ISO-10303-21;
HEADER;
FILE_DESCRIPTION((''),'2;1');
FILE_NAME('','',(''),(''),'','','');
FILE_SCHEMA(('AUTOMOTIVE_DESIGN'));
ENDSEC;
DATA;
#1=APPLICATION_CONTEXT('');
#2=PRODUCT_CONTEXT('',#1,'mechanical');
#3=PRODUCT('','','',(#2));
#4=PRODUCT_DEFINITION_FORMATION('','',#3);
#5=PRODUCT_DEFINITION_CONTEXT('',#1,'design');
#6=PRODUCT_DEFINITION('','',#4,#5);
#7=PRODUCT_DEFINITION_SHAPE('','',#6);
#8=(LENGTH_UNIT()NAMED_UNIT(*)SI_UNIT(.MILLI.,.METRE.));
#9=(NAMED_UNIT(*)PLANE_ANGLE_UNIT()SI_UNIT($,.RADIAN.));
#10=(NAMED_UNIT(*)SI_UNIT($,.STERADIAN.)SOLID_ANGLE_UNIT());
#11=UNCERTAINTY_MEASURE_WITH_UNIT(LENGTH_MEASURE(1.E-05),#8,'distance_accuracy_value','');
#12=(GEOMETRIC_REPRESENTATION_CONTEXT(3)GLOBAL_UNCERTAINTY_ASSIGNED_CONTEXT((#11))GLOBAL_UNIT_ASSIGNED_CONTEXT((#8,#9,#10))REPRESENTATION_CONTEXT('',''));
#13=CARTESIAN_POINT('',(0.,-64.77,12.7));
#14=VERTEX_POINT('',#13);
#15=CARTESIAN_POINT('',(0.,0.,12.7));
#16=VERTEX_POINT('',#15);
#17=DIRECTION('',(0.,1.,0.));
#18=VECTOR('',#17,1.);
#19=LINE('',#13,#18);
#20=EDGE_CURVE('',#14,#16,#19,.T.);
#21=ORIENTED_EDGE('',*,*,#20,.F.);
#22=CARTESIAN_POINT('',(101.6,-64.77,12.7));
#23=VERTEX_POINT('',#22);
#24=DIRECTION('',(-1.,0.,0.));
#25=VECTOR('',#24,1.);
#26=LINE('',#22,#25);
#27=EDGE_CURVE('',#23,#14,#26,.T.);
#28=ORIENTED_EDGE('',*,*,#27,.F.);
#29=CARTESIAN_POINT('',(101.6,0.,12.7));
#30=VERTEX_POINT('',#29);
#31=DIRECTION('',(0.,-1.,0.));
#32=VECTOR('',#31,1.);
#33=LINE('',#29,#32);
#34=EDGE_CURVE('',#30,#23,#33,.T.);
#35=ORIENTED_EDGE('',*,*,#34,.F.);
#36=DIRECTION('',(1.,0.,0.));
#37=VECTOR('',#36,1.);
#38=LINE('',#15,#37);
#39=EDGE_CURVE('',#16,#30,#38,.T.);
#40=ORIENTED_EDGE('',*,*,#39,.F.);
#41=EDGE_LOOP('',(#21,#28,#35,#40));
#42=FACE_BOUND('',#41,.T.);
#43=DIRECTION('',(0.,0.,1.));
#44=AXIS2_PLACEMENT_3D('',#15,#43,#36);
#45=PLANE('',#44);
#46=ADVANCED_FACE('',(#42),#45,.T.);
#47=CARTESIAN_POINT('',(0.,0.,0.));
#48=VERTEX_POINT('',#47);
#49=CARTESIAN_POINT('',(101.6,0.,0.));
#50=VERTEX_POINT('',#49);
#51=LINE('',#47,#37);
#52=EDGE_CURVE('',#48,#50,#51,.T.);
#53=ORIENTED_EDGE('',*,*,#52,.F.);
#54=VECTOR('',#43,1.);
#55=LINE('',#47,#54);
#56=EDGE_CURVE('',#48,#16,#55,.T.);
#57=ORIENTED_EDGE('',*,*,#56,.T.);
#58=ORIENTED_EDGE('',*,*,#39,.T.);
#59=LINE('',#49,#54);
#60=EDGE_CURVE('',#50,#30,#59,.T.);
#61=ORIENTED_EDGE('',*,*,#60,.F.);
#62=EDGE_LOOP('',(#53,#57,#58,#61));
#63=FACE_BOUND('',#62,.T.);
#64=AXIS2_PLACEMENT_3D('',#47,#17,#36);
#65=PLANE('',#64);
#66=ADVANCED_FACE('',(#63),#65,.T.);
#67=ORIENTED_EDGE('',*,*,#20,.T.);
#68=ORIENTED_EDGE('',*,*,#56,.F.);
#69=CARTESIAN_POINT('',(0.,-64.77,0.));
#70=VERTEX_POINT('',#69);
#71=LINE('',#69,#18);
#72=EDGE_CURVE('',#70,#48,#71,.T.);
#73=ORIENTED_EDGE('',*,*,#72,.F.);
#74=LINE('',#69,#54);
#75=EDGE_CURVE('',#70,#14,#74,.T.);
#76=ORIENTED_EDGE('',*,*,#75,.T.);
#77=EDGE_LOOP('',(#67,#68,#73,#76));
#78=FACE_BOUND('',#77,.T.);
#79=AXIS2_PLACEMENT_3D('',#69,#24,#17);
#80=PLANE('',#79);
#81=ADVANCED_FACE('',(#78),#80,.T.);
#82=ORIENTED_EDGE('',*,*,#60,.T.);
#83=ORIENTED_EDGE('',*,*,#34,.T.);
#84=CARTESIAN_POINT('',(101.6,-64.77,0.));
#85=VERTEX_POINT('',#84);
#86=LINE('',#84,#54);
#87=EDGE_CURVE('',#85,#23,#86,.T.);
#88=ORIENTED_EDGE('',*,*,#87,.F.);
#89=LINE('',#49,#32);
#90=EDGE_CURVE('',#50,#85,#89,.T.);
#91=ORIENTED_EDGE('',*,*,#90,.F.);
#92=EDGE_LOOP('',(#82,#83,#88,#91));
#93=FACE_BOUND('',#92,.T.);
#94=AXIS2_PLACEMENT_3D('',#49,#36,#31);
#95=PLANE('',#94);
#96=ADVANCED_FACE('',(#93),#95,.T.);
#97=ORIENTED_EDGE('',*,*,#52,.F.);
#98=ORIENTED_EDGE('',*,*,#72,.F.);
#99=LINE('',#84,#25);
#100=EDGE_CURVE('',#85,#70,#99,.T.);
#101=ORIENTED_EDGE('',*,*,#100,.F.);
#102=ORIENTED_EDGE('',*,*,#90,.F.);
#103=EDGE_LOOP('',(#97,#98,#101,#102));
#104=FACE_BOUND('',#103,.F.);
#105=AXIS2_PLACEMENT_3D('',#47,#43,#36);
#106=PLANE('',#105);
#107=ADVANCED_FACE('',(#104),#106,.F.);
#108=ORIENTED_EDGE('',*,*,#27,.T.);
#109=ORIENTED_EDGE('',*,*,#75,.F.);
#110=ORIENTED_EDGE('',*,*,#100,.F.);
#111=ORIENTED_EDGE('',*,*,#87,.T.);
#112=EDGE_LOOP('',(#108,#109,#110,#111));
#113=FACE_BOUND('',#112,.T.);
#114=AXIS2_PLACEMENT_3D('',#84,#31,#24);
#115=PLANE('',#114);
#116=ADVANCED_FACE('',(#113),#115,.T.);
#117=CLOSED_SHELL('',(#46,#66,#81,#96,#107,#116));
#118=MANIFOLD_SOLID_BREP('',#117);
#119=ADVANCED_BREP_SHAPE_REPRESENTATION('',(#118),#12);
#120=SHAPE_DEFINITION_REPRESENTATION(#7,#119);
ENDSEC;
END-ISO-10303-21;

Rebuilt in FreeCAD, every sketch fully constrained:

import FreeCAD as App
import Part
import Sketcher
Q = App.Units.Quantity

doc = App.newDocument("Part")
body = doc.addObject("PartDesign::Body", "Body")

# Sketch on XY plane
sketch1 = body.newObject("Sketcher::SketchObject", "Sketch")
sketch1.AttachmentSupport = (doc.getObject("XY_Plane"), [""])
sketch1.MapMode = "FlatFace"
sketch1.addGeometry(Part.LineSegment(App.Vector(102, 0, 0), App.Vector(0, 0, 0)), False)
sketch1.addGeometry(Part.LineSegment(App.Vector(0, 0, 0), App.Vector(0, -65, 0)), False)
sketch1.addGeometry(Part.LineSegment(App.Vector(0, -65, 0), App.Vector(102, -65, 0)), False)
sketch1.addGeometry(Part.LineSegment(App.Vector(102, -65, 0), App.Vector(102, 0, 0)), False)
sketch1.addConstraint(Sketcher.Constraint("Coincident", 0, 2, 1, 1))
sketch1.addConstraint(Sketcher.Constraint("Coincident", 1, 2, 2, 1))
sketch1.addConstraint(Sketcher.Constraint("Coincident", 2, 2, 3, 1))
sketch1.addConstraint(Sketcher.Constraint("Coincident", 3, 2, 0, 1))
sketch1.addConstraint(Sketcher.Constraint("Horizontal", 0))
sketch1.addConstraint(Sketcher.Constraint("Vertical", 1))
sketch1.addConstraint(Sketcher.Constraint("Horizontal", 2))
sketch1.addConstraint(Sketcher.Constraint("Vertical", 3))
sketch1.addConstraint(Sketcher.Constraint("Coincident", 0, 2, -1, 1))
sketch1.addConstraint(Sketcher.Constraint("DistanceX", 0, 2, 0, 1, Q("4 in")))
sketch1.addConstraint(Sketcher.Constraint("DistanceY", 1, 2, 1, 1, Q("2.55 in")))
pad1 = body.newObject("PartDesign::Pad", "Pad")
pad1.Profile = sketch1
pad1.Length = Q("0.5 in")

doc.recompute()
